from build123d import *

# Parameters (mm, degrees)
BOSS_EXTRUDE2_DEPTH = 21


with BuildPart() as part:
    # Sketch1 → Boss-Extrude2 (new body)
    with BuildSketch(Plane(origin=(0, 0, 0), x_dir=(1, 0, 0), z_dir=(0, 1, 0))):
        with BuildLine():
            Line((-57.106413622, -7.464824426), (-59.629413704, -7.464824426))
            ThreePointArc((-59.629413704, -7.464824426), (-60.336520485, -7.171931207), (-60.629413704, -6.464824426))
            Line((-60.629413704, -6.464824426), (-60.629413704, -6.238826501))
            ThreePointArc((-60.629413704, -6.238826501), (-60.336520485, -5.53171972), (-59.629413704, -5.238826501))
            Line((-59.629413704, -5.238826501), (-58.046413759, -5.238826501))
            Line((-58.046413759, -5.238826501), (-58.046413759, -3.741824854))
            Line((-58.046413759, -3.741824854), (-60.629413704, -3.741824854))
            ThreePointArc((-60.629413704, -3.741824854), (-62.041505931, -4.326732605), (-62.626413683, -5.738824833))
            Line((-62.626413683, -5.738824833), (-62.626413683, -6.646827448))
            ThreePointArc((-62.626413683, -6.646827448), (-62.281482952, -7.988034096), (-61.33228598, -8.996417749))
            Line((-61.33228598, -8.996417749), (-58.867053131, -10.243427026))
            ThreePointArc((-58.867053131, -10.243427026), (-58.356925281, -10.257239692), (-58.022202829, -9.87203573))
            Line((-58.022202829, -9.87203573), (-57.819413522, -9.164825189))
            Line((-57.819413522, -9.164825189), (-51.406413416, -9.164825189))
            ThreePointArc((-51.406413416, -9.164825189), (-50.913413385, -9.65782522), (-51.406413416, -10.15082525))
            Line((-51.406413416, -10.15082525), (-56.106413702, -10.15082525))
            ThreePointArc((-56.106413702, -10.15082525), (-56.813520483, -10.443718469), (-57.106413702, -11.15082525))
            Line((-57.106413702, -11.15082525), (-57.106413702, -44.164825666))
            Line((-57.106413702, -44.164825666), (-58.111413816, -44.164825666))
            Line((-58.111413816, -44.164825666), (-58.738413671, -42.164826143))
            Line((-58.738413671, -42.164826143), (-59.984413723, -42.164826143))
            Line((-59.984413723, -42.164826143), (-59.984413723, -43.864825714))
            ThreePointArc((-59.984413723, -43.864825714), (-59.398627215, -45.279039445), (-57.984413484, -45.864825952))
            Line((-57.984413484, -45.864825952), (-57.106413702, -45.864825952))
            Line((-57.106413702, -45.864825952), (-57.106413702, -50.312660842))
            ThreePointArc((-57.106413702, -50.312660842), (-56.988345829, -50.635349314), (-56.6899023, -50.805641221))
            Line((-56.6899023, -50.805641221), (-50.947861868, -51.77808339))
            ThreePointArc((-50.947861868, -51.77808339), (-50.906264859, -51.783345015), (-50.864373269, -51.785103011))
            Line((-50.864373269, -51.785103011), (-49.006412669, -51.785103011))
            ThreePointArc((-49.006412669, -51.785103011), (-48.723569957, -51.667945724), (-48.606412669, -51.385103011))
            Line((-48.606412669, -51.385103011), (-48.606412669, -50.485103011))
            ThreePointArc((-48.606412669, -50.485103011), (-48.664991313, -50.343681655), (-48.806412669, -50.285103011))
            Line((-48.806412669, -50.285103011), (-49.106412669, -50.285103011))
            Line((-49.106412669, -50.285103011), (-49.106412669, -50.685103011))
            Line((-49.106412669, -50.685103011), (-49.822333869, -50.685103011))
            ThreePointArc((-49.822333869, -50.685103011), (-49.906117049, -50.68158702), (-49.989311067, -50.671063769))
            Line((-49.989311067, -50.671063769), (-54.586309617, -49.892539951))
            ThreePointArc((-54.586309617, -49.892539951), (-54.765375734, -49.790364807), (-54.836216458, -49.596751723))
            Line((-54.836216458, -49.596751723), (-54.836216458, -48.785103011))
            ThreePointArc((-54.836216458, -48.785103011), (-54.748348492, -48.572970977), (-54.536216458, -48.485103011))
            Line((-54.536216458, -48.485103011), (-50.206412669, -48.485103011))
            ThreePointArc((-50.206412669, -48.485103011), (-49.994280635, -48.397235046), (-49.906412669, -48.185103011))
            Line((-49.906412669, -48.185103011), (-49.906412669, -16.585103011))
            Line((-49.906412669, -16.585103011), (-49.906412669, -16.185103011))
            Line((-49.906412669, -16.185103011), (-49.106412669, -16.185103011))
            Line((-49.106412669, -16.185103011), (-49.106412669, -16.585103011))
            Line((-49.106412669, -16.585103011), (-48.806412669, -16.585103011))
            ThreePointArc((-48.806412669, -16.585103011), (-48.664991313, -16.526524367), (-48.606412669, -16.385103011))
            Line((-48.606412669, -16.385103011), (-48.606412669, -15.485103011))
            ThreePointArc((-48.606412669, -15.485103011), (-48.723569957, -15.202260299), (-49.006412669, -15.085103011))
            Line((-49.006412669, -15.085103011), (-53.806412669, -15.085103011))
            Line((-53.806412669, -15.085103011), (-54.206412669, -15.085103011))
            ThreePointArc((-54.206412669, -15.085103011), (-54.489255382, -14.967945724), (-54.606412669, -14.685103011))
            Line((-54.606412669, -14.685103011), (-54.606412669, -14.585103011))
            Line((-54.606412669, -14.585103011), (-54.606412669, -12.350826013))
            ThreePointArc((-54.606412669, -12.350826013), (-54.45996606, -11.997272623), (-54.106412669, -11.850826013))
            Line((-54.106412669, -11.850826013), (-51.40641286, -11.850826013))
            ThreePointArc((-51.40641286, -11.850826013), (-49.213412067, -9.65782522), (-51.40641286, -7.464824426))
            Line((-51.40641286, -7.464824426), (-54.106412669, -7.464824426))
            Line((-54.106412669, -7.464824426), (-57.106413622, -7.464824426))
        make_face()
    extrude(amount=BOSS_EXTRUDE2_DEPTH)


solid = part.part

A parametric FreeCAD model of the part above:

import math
import FreeCAD as App
import Part
import Sketcher

V = App.Vector
Q = App.Units.Quantity

doc = App.newDocument("Part")
body = doc.addObject("PartDesign::Body", "Body")

# Sketch on XZ plane
sketch1 = body.newObject("Sketcher::SketchObject", "Sketch")
sketch1.AttachmentSupport = (doc.getObject("XZ_Plane"), [""])
sketch1.MapMode = "FlatFace"
sketch1.addGeometry([
    Part.ArcOfCircle(Part.Circle(V(-59.63, 6.46, 0), V(0, 0, 1), 1), math.radians(90), math.radians(180)),  # 0
    Part.LineSegment(V(-60.63, 6.46, 0), V(-60.63, 6.24, 0)),  # 1
    Part.ArcOfCircle(Part.Circle(V(-59.63, 6.24, 0), V(0, 0, 1), 1), math.radians(-180), math.radians(-90)),  # 2
    Part.LineSegment(V(-59.63, 5.24, 0), V(-58.05, 5.24, 0)),  # 3
    Part.LineSegment(V(-58.05, 5.24, 0), V(-58.05, 3.74, 0)),  # 4
    Part.LineSegment(V(-58.05, 3.74, 0), V(-60.63, 3.74, 0)),  # 5
    Part.ArcOfCircle(Part.Circle(V(-60.63, 5.74, 0), V(0, 0, 1), 2), math.radians(180), math.radians(270)),  # 6
    Part.LineSegment(V(-62.63, 5.74, 0), V(-62.63, 6.65, 0)),  # 7
    Part.ArcOfCircle(Part.Circle(V(-59.85, 6.65, 0), V(0, 0, 1), 2.78), math.radians(122), math.radians(180)),  # 8
    Part.LineSegment(V(-61.33, 9, 0), V(-58.87, 10.24, 0)),  # 9
    Part.ArcOfCircle(Part.Circle(V(-58.6, 9.71, 0), V(0, 0, 1), 0.6), math.radians(16), math.radians(117)),  # 10
    Part.LineSegment(V(-58.02, 9.87, 0), V(-57.82, 9.16, 0)),  # 11
    Part.LineSegment(V(-57.82, 9.16, 0), V(-51.41, 9.16, 0)),  # 12
    Part.ArcOfCircle(Part.Circle(V(-51.41, 9.66, 0), V(0, 0, 1), 0.49), math.radians(-90), math.radians(90)),  # 13
    Part.LineSegment(V(-51.41, 10.15, 0), V(-56.11, 10.15, 0)),  # 14
    Part.ArcOfCircle(Part.Circle(V(-56.11, 11.15, 0), V(0, 0, 1), 1), math.radians(-180), math.radians(-90)),  # 15
    Part.LineSegment(V(-57.11, 11.15, 0), V(-57.11, 44.16, 0)),  # 16
    Part.LineSegment(V(-57.11, 44.16, 0), V(-58.11, 44.16, 0)),  # 17
    Part.LineSegment(V(-58.11, 44.16, 0), V(-58.74, 42.16, 0)),  # 18
    Part.LineSegment(V(-58.74, 42.16, 0), V(-59.98, 42.16, 0)),  # 19
    Part.LineSegment(V(-59.98, 42.16, 0), V(-59.98, 43.86, 0)),  # 20
    Part.ArcOfCircle(Part.Circle(V(-57.98, 43.86, 0), V(0, 0, 1), 2), math.radians(90), math.radians(180)),  # 21
    Part.LineSegment(V(-57.98, 45.86, 0), V(-57.11, 45.86, 0)),  # 22
    Part.LineSegment(V(-57.11, 45.86, 0), V(-57.11, 50.31, 0)),  # 23
    Part.ArcOfCircle(Part.Circle(V(-56.61, 50.31, 0), V(0, 0, 1), 0.5), math.radians(100), math.radians(180)),  # 24
    Part.LineSegment(V(-56.69, 50.81, 0), V(-50.95, 51.78, 0)),  # 25
    Part.ArcOfCircle(Part.Circle(V(-50.86, 51.29, 0), V(0, 0, 1), 0.5), math.radians(90), math.radians(99.61)),  # 26
    Part.LineSegment(V(-50.86, 51.79, 0), V(-49.01, 51.79, 0)),  # 27
    Part.ArcOfCircle(Part.Circle(V(-49.01, 51.39, 0), V(0, 0, 1), 0.4), math.radians(0), math.radians(90)),  # 28
    Part.LineSegment(V(-48.61, 51.39, 0), V(-48.61, 50.49, 0)),  # 29
    Part.ArcOfCircle(Part.Circle(V(-48.81, 50.49, 0), V(0, 0, 1), 0.2), math.radians(-90), math.radians(0)),  # 30
    Part.LineSegment(V(-48.81, 50.29, 0), V(-49.11, 50.29, 0)),  # 31
    Part.LineSegment(V(-49.11, 50.29, 0), V(-49.11, 50.69, 0)),  # 32
    Part.LineSegment(V(-49.11, 50.69, 0), V(-49.82, 50.69, 0)),  # 33
    Part.ArcOfCircle(Part.Circle(V(-49.82, 49.69, 0), V(0, 0, 1), 1), math.radians(90), math.radians(99.61)),  # 34
    Part.LineSegment(V(-49.99, 50.67, 0), V(-54.59, 49.89, 0)),  # 35
    Part.ArcOfCircle(Part.Circle(V(-54.54, 49.6, 0), V(0, 0, 1), 0.3), math.radians(100), math.radians(180)),  # 36
    Part.LineSegment(V(-54.84, 49.6, 0), V(-54.84, 48.79, 0)),  # 37
    Part.ArcOfCircle(Part.Circle(V(-54.54, 48.79, 0), V(0, 0, 1), 0.3), math.radians(-180), math.radians(-90)),  # 38
    Part.LineSegment(V(-54.54, 48.49, 0), V(-50.21, 48.49, 0)),  # 39
    Part.ArcOfCircle(Part.Circle(V(-50.21, 48.19, 0), V(0, 0, 1), 0.3), math.radians(0), math.radians(90)),  # 40
    Part.LineSegment(V(-49.91, 48.19, 0), V(-49.91, 16.19, 0)),  # 41
    Part.LineSegment(V(-49.91, 16.19, 0), V(-49.11, 16.19, 0)),  # 42
    Part.LineSegment(V(-49.11, 16.19, 0), V(-49.11, 16.59, 0)),  # 43
    Part.LineSegment(V(-49.11, 16.59, 0), V(-48.81, 16.59, 0)),  # 44
    Part.ArcOfCircle(Part.Circle(V(-48.81, 16.39, 0), V(0, 0, 1), 0.2), math.radians(0), math.radians(90)),  # 45
    Part.LineSegment(V(-48.61, 16.39, 0), V(-48.61, 15.49, 0)),  # 46
    Part.ArcOfCircle(Part.Circle(V(-49.01, 15.49, 0), V(0, 0, 1), 0.4), math.radians(-90), math.radians(0)),  # 47
    Part.LineSegment(V(-49.01, 15.09, 0), V(-54.21, 15.09, 0)),  # 48
    Part.ArcOfCircle(Part.Circle(V(-54.21, 14.69, 0), V(0, 0, 1), 0.4), math.radians(90), math.radians(180)),  # 49
    Part.LineSegment(V(-54.61, 14.69, 0), V(-54.61, 12.35, 0)),  # 50
    Part.ArcOfCircle(Part.Circle(V(-54.11, 12.35, 0), V(0, 0, 1), 0.5), math.radians(180), math.radians(270)),  # 51
    Part.LineSegment(V(-54.11, 11.85, 0), V(-51.41, 11.85, 0)),  # 52
    Part.ArcOfCircle(Part.Circle(V(-51.41, 9.66, 0), V(0, 0, 1), 2.19), math.radians(-90), math.radians(90)),  # 53
    Part.LineSegment(V(-51.41, 7.46, 0), V(-59.63, 7.46, 0)),  # 54
], False)
sketch1.addConstraint([
    Sketcher.Constraint("Tangent", 0, 2, 1, 1),
    Sketcher.Constraint("Tangent", 1, 2, 2, 1),
    Sketcher.Constraint("Tangent", 2, 2, 3, 1),
    Sketcher.Constraint("Coincident", 3, 2, 4, 1),
    Sketcher.Constraint("Coincident", 4, 2, 5, 1),
    Sketcher.Constraint("Tangent", 5, 2, 6, 2),
    Sketcher.Constraint("Tangent", 6, 1, 7, 1),
    Sketcher.Constraint("Tangent", 7, 2, 8, 2),
    Sketcher.Constraint("Coincident", 8, 1, 9, 1),
    Sketcher.Constraint("Tangent", 9, 2, 10, 2),
    Sketcher.Constraint("Coincident", 10, 1, 11, 1),
    Sketcher.Constraint("Coincident", 11, 2, 12, 1),
    Sketcher.Constraint("Tangent", 12, 2, 13, 1),
    Sketcher.Constraint("Tangent", 13, 2, 14, 1),
    Sketcher.Constraint("Tangent", 14, 2, 15, 2),
    Sketcher.Constraint("Tangent", 15, 1, 16, 1),
    Sketcher.Constraint("Coincident", 16, 2, 17, 1),
    Sketcher.Constraint("Coincident", 17, 2, 18, 1),
    Sketcher.Constraint("Coincident", 18, 2, 19, 1),
    Sketcher.Constraint("Coincident", 19, 2, 20, 1),
    Sketcher.Constraint("Tangent", 20, 2, 21, 2),
    Sketcher.Constraint("Tangent", 21, 1, 22, 1),
    Sketcher.Constraint("Coincident", 22, 2, 23, 1),
    Sketcher.Constraint("Tangent", 23, 2, 24, 2),
    Sketcher.Constraint("Tangent", 24, 1, 25, 1),
    Sketcher.Constraint("Tangent", 25, 2, 26, 2),
    Sketcher.Constraint("Tangent", 26, 1, 27, 1),
    Sketcher.Constraint("Tangent", 27, 2, 28, 2),
    Sketcher.Constraint("Tangent", 28, 1, 29, 1),
    Sketcher.Constraint("Tangent", 29, 2, 30, 2),
    Sketcher.Constraint("Tangent", 30, 1, 31, 1),
    Sketcher.Constraint("Coincident", 31, 2, 32, 1),
    Sketcher.Constraint("Coincident", 32, 2, 33, 1),
    Sketcher.Constraint("Tangent", 33, 2, 34, 1),
    Sketcher.Constraint("Tangent", 34, 2, 35, 1),
    Sketcher.Constraint("Tangent", 35, 2, 36, 1),
    Sketcher.Constraint("Tangent", 36, 2, 37, 1),
    Sketcher.Constraint("Tangent", 37, 2, 38, 1),
    Sketcher.Constraint("Tangent", 38, 2, 39, 1),
    Sketcher.Constraint("Tangent", 39, 2, 40, 2),
    Sketcher.Constraint("Tangent", 40, 1, 41, 1),
    Sketcher.Constraint("Coincident", 41, 2, 42, 1),
    Sketcher.Constraint("Coincident", 42, 2, 43, 1),
    Sketcher.Constraint("Coincident", 43, 2, 44, 1),
    Sketcher.Constraint("Tangent", 44, 2, 45, 2),
    Sketcher.Constraint("Tangent", 45, 1, 46, 1),
    Sketcher.Constraint("Tangent", 46, 2, 47, 2),
    Sketcher.Constraint("Tangent", 47, 1, 48, 1),
    Sketcher.Constraint("Tangent", 48, 2, 49, 1),
    Sketcher.Constraint("Tangent", 49, 2, 50, 1),
    Sketcher.Constraint("Tangent", 50, 2, 51, 1),
    Sketcher.Constraint("Tangent", 51, 2, 52, 1),
    Sketcher.Constraint("Tangent", 52, 2, 53, 2),
    Sketcher.Constraint("Tangent", 53, 1, 54, 1),
    Sketcher.Constraint("Tangent", 54, 2, 0, 1),
    Sketcher.Constraint("Vertical", 1),
    Sketcher.Constraint("Horizontal", 3),
    Sketcher.Constraint("Vertical", 4),
    Sketcher.Constraint("Horizontal", 5),
    Sketcher.Constraint("Vertical", 7),
    Sketcher.Constraint("Horizontal", 12),
    Sketcher.Constraint("Horizontal", 14),
    Sketcher.Constraint("Vertical", 16),
    Sketcher.Constraint("Horizontal", 17),
    Sketcher.Constraint("Horizontal", 19),
    Sketcher.Constraint("Vertical", 20),
    Sketcher.Constraint("Horizontal", 22),
    Sketcher.Constraint("Vertical", 23),
    Sketcher.Constraint("Horizontal", 27),
    Sketcher.Constraint("Vertical", 29),
    Sketcher.Constraint("Horizontal", 31),
    Sketcher.Constraint("Vertical", 32),
    Sketcher.Constraint("Horizontal", 33),
    Sketcher.Constraint("Vertical", 37),
    Sketcher.Constraint("Horizontal", 39),
    Sketcher.Constraint("Vertical", 41),
    Sketcher.Constraint("Horizontal", 42),
    Sketcher.Constraint("Vertical", 43),
    Sketcher.Constraint("Horizontal", 44),
    Sketcher.Constraint("Vertical", 46),
    Sketcher.Constraint("Horizontal", 48),
    Sketcher.Constraint("Vertical", 50),
    Sketcher.Constraint("Horizontal", 52),
    Sketcher.Constraint("Horizontal", 54),
    Sketcher.Constraint("Coincident", 53, 3, 13, 3),
    Sketcher.Constraint("Equal", 0, 2),
    Sketcher.Constraint("Equal", 2, 15),
    Sketcher.Constraint("Equal", 24, 26),
    Sketcher.Constraint("Equal", 15, 34),
    Sketcher.Constraint("Equal", 36, 38),
    Sketcher.Constraint("Equal", 38, 40),
    Sketcher.Constraint("Equal", 30, 45),
    Sketcher.Constraint("Equal", 28, 47),
    Sketcher.Constraint("Equal", 47, 49),
    Sketcher.Constraint("Equal", 26, 51),
    Sketcher.Constraint("Parallel", 25, 35),
    Sketcher.Constraint("Vertical", 30, 3, 45, 3),
    Sketcher.Constraint("Vertical", 6, 3, 0, 2),
    Sketcher.Constraint("Vertical", 16, 2, 22, 2),
    Sketcher.Constraint("Vertical", 32, 2, 42, 2),
    Sketcher.Constraint("Equal", 32, 43),
    Sketcher.Constraint("Equal", 29, 46),
    Sketcher.Constraint("Radius", 0, Q("1 mm")),
    Sketcher.Constraint("Radius", 21, Q("2 mm")),
    Sketcher.Constraint("Radius", 24, Q("0.5 mm")),
    Sketcher.Constraint("Radius", 28, Q("0.4 mm")),
    Sketcher.Constraint("Radius", 30, Q("0.2 mm")),
    Sketcher.Constraint("Radius", 36, Q("0.3 mm")),
    Sketcher.Constraint("DistanceY", 41, 2, 41, 1, Q("32 mm")),
    Sketcher.Constraint("Angle", 11, Q("-74.000004 deg")),
    Sketcher.Constraint("DistanceX", 14, 2, 14, 1, Q("4.7 mm")),
    Sketcher.Constraint("DistanceX", 31, 2, 31, 1, Q("0.3 mm")),
    Sketcher.Constraint("DistanceX", 42, 1, 42, 2, Q("0.8 mm")),
    Sketcher.Constraint("DistanceX", 48, 2, 48, 1, Q("5.2 mm")),
    Sketcher.Constraint("DistanceX", 52, 1, 52, 2, Q("2.7 mm")),
    Sketcher.Constraint("DistanceY", 20, 1, 20, 2, Q("1.7 mm")),
    Sketcher.Constraint("DistanceY", 29, 2, 29, 1, Q("0.9 mm")),
    Sketcher.Constraint("DistanceY", 32, 1, 32, 2, Q("0.4 mm")),
    Sketcher.Constraint("Radius", 6, Q("1.997 mm")),
    Sketcher.Constraint("Radius", 13, Q("0.493 mm")),
    Sketcher.Constraint("Radius", 53, Q("2.193001 mm")),
    Sketcher.Constraint("DistanceX", 3, 1, 3, 2, Q("1.583 mm")),
    Sketcher.Constraint("DistanceX", 12, 1, 12, 2, Q("6.413 mm")),
    Sketcher.Constraint("DistanceX", 17, 2, 17, 1, Q("1.005 mm")),
    Sketcher.Constraint("DistanceX", 19, 2, 19, 1, Q("1.246 mm")),
    Sketcher.Constraint("DistanceX", 22, 1, 22, 2, Q("0.878 mm")),
    Sketcher.Constraint("DistanceX", 54, 2, 54, 1, Q("8.223001 mm")),
    Sketcher.Constraint("DistanceY", 4, 2, 4, 1, Q("1.497002 mm")),
    Sketcher.Constraint("DistanceY", 16, 1, 16, 2, Q("33.014 mm")),
    Sketcher.Constraint("Radius", 8, Q("2.779997 mm")),
    Sketcher.Constraint("Radius", 10, Q("0.597477 mm")),
    Sketcher.Constraint("DistanceX", 27, 1, 27, 2, Q("1.857961 mm")),
    Sketcher.Constraint("DistanceX", 33, 2, 33, 1, Q("0.715921 mm")),
    Sketcher.Constraint("DistanceY", 37, 2, 37, 1, Q("0.811649 mm")),
    Sketcher.Constraint("Distance", 9, Q("2.762681 mm")),
    Sketcher.Constraint("Distance", 11, Q("0.735711 mm")),
    Sketcher.Constraint("Distance", 18, Q("2.095979 mm")),
    Sketcher.Constraint("DistanceX", 39, 1, 39, 2, Q("4.329804 mm")),
    Sketcher.Constraint("DistanceY", 1, 2, 1, 1, Q("0.225998 mm")),
    Sketcher.Constraint("DistanceY", 7, 1, 7, 2, Q("0.908003 mm")),
    Sketcher.Constraint("DistanceY", 23, 1, 23, 2, Q("4.447835 mm")),
    Sketcher.Constraint("DistanceY", 50, 2, 50, 1, Q("2.334277 mm")),
    Sketcher.Constraint("DistanceY", -1, 1, 10, 3, Q("9.710279 mm")),
    Sketcher.Constraint("DistanceY", -1, 1, 24, 3, Q("50.312661 mm")),
    Sketcher.Constraint("DistanceX", 25, 2, -1, 1, Q("50.947862 mm")),
])
pad1 = body.newObject("PartDesign::Pad", "Pad")
pad1.Profile = sketch1
pad1.Length = 21
pad1.Reversed = True

doc.recompute()
